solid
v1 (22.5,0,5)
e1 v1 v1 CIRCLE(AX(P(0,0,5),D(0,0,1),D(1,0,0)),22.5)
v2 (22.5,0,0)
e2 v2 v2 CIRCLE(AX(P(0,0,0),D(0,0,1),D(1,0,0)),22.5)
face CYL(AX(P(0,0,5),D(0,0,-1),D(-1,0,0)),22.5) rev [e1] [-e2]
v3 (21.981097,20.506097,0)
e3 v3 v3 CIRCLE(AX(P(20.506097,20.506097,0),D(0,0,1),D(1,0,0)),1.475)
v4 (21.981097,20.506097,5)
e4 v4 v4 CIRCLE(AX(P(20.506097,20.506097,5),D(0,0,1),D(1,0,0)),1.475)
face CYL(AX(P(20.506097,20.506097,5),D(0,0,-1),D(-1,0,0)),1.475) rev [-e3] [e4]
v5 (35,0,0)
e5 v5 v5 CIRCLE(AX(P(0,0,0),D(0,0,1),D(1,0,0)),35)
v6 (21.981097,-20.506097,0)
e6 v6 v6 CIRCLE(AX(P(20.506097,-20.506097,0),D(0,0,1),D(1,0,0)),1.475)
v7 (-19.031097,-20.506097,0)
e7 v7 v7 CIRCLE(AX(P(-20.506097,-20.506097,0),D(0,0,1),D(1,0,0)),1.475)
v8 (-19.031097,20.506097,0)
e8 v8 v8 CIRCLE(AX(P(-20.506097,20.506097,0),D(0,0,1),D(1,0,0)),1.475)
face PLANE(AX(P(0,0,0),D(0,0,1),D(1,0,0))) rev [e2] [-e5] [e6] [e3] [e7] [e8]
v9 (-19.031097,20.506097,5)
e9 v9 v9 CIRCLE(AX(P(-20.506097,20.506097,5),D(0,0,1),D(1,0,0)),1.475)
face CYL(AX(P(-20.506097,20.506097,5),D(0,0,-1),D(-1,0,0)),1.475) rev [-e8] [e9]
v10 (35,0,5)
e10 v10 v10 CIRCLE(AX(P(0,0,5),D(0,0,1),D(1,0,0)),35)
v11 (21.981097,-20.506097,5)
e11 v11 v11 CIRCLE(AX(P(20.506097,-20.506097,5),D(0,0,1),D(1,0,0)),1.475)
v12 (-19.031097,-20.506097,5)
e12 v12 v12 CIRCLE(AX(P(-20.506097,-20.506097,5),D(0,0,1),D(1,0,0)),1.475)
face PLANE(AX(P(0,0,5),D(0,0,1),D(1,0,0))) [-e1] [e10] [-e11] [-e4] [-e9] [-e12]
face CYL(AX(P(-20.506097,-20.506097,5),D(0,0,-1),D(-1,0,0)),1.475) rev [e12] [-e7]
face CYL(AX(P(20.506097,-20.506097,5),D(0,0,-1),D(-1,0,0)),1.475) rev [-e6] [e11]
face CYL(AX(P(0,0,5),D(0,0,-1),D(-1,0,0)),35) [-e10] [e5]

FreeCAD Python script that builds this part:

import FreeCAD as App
import Part
import Sketcher
Q = App.Units.Quantity

doc = App.newDocument("Part")
body = doc.addObject("PartDesign::Body", "Body")

sketch1 = doc.addObject("Sketcher::SketchObject", "Sketch")
body.addObject(sketch1)
sketch1.AttachmentSupport = (doc.XY_Plane, [""])
sketch1.MapMode = "FlatFace"
sketch1.addGeometry([
    Part.Circle(App.Vector(0, 0, 0), App.Vector(0, 0, 1), 35),
    Part.Circle(App.Vector(-20.5, -20.5, 0), App.Vector(0, 0, 1), 1.5),
    Part.Circle(App.Vector(20.5, -20.5, 0), App.Vector(0, 0, 1), 1.5),
    Part.Circle(App.Vector(-20.5, 20.5, 0), App.Vector(0, 0, 1), 1.5),
    Part.Circle(App.Vector(0, 0, 0), App.Vector(0, 0, 1), 22.5),
    Part.Circle(App.Vector(20.5, 20.5, 0), App.Vector(0, 0, 1), 1.5),
], False)
sketch1.addConstraint([
    Sketcher.Constraint("Coincident", 0, 3, -1, 1),
    Sketcher.Constraint("Coincident", 4, 3, -1, 1),
    Sketcher.Constraint("Equal", 1, 2),
    Sketcher.Constraint("Equal", 2, 3),
    Sketcher.Constraint("Equal", 3, 5),
    Sketcher.Constraint("Symmetric", 2, 3, 3, 3, -1, 1),
    Sketcher.Constraint("Symmetric", 1, 3, 5, 3, -1, 1),
    Sketcher.Constraint("Symmetric", 1, 3, 2, 3, -2),
    Sketcher.Constraint("Diameter", 0, Q("70 mm")),
    Sketcher.Constraint("Diameter", 4, Q("45 mm")),
    Sketcher.Constraint("Diameter", 1, Q("2.95 mm")),
    Sketcher.Constraint("DistanceX", 1, 3, -1, 1, Q("20.506097 mm")),
    Sketcher.Constraint("DistanceY", 1, 3, -1, 1, Q("20.506097 mm")),
])
pad1 = doc.addObject("PartDesign::Pad", "Pad")
body.addObject(pad1)
pad1.Profile = sketch1
pad1.Length = 5

doc.recompute()
